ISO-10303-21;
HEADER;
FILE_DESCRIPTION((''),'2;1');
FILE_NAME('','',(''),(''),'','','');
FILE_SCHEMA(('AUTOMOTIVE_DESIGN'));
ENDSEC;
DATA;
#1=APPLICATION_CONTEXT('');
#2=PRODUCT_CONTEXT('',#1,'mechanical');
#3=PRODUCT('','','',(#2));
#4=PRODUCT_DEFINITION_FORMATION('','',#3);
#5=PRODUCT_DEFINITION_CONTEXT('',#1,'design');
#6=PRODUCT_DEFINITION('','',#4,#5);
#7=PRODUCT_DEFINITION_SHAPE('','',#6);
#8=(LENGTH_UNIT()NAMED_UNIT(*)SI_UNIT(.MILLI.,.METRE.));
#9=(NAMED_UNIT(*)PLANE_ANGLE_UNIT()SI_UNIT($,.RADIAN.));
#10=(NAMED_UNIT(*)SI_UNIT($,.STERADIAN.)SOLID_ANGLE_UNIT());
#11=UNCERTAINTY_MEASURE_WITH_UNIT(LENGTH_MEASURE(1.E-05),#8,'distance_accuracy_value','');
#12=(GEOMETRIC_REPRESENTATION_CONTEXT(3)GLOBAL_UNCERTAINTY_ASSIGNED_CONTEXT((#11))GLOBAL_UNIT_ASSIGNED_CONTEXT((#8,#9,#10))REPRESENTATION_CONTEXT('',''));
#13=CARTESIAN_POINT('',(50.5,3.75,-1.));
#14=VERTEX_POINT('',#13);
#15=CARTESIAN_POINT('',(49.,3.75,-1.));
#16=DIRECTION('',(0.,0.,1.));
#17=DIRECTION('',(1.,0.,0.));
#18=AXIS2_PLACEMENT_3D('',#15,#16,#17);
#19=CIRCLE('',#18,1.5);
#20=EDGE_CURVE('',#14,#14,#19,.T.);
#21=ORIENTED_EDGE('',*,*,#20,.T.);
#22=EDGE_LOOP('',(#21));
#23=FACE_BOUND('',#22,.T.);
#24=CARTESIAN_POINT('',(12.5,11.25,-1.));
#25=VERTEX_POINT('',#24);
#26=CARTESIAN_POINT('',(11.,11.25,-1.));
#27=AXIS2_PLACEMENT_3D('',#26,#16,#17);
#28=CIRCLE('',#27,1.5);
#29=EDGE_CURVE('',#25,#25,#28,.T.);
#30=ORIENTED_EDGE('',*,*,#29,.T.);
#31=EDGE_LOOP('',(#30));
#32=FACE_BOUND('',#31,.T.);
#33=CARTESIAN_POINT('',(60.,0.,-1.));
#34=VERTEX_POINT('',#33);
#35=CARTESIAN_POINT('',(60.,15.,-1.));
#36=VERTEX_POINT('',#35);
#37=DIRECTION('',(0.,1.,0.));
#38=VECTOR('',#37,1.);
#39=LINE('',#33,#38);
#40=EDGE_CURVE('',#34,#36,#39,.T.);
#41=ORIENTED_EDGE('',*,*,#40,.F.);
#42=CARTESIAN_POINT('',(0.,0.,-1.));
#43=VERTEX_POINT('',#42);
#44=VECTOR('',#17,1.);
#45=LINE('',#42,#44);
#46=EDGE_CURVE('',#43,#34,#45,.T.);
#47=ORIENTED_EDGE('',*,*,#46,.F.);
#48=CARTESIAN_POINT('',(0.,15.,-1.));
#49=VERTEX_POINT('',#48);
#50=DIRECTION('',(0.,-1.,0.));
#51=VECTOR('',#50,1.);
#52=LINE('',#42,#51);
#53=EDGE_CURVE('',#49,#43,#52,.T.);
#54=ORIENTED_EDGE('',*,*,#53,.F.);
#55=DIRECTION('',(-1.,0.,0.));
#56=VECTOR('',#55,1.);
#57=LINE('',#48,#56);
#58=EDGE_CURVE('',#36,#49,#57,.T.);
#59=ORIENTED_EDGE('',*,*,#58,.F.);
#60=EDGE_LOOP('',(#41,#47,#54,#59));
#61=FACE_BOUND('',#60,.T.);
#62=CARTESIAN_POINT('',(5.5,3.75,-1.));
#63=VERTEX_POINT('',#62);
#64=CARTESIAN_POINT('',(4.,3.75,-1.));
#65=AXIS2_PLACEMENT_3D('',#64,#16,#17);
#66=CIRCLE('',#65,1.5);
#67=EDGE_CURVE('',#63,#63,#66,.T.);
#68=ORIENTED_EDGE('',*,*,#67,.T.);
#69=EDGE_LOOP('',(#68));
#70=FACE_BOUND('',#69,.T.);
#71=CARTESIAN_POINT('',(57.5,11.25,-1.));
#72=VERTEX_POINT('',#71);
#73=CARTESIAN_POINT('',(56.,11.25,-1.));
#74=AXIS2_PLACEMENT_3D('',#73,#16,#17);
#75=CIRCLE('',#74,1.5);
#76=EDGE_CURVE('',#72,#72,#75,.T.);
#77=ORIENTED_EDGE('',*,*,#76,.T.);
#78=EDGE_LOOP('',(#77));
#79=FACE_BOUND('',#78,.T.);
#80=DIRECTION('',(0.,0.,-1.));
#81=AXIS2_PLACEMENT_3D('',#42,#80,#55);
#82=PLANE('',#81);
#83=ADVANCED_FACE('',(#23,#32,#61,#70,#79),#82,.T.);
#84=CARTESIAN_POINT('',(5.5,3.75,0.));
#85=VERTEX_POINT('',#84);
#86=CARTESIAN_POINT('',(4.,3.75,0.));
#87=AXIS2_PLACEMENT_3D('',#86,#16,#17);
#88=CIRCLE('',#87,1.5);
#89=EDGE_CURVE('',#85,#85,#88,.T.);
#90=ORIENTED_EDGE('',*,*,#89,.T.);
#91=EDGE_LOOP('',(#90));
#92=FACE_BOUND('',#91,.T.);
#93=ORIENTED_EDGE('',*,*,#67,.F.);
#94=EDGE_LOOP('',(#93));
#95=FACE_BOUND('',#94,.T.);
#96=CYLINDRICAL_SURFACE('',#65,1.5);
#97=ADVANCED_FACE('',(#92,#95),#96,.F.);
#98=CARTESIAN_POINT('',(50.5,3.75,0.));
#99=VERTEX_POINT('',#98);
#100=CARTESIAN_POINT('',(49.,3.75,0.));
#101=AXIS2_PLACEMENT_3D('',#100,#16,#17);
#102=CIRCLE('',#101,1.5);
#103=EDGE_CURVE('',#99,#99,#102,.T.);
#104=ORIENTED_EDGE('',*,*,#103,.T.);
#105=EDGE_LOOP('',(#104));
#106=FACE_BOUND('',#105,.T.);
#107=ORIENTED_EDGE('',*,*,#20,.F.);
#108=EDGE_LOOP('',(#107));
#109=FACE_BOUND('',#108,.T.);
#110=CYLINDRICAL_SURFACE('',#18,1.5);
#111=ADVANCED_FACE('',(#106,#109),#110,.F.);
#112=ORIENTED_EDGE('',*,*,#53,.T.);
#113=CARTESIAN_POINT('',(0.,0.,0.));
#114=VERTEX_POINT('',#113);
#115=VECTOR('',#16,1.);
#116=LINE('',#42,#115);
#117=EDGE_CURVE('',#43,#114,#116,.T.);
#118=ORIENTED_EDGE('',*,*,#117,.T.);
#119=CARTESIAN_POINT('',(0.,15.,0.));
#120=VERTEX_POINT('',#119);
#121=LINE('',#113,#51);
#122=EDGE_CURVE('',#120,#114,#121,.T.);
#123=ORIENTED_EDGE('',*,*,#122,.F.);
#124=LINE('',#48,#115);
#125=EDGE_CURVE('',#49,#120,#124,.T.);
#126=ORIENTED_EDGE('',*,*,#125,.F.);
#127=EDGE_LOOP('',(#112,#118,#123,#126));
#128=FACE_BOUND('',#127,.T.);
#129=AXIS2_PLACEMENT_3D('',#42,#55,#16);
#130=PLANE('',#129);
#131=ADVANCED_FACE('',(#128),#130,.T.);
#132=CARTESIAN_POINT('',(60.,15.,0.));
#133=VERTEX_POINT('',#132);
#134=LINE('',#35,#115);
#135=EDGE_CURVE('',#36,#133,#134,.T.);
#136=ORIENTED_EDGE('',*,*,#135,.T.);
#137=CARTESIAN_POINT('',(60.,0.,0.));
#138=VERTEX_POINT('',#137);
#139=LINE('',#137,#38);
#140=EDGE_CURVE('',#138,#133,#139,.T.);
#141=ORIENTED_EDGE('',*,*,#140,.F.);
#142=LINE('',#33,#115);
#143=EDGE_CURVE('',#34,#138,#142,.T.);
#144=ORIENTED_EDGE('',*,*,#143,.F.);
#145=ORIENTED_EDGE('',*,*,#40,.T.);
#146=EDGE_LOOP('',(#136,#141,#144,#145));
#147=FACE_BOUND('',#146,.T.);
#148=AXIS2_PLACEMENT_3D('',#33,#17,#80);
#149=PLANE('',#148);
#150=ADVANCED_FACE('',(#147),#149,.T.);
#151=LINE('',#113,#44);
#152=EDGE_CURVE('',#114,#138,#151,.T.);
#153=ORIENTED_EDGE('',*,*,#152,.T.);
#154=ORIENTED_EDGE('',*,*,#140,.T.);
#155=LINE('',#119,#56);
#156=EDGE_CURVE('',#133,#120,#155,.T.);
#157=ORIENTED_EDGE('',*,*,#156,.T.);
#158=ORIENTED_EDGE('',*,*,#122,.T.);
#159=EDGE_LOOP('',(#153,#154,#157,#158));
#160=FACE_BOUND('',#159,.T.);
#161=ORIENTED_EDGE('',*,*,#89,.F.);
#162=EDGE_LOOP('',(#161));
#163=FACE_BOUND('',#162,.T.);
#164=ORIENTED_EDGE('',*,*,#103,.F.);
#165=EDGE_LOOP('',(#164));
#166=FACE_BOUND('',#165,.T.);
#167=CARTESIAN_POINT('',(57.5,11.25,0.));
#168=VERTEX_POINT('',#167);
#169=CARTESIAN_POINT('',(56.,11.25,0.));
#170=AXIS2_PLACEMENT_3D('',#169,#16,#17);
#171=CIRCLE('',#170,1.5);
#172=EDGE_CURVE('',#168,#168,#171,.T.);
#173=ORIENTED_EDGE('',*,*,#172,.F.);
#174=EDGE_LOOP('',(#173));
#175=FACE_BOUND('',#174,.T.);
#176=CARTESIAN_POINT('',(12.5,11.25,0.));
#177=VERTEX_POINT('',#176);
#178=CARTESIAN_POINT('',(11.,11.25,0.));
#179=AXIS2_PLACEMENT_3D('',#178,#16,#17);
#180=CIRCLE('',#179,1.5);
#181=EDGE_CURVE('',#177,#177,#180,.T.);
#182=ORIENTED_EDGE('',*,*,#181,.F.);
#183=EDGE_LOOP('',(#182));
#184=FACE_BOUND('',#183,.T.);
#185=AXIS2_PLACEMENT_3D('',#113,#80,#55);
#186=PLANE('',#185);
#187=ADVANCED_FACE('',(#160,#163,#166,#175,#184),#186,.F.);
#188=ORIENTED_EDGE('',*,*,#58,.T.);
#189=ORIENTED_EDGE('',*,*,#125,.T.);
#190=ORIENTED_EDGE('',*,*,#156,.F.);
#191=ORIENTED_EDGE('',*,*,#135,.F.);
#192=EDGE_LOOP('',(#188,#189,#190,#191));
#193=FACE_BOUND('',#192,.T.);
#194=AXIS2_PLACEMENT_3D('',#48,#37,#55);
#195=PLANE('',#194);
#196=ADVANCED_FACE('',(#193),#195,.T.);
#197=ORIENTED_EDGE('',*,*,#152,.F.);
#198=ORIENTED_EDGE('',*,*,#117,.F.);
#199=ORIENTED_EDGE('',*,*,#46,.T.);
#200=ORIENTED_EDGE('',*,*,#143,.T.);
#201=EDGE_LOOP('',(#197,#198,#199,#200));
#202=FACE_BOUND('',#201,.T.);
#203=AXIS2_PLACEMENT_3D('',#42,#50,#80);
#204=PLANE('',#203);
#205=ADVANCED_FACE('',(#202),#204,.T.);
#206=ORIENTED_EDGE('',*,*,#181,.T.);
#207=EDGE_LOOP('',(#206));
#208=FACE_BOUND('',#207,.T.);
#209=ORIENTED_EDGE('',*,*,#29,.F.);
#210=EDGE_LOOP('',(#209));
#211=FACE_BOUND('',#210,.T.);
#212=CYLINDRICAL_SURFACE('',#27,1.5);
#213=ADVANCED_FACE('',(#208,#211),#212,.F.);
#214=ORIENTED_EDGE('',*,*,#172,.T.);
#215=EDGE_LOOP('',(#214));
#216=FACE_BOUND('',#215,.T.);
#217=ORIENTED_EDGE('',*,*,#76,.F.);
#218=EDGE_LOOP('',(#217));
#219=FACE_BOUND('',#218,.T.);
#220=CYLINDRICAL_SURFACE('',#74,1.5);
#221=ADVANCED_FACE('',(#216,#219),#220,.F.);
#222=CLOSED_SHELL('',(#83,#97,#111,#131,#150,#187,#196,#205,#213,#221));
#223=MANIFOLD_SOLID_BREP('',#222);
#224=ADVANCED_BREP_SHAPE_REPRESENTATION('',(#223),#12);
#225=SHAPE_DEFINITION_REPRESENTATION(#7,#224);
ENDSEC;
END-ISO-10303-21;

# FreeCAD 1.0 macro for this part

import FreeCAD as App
import Part
import Sketcher

V = App.Vector


def add_polygon(sketch, points):
    """Adds a closed chain of lines whose ends are joined by coincident constraints."""
    first, n = sketch.GeometryCount, len(points)
    for a, b in zip(points, points[1:] + points[:1]):
        sketch.addGeometry(Part.LineSegment(App.Vector(*a, 0), App.Vector(*b, 0)), False)
    for i in range(n):
        sketch.addConstraint(Sketcher.Constraint("Coincident", first + i, 2, first + (i + 1) % n, 1))

doc = App.newDocument("Part")
params = doc.addObject("Spreadsheet::Sheet", "Params")
for row, (alias, value) in enumerate([
    ("sketch1_diameter", "3 mm"),
    ("sketch1_width", "60 mm"),
    ("sketch1_height", "15 mm"),
    ("pad1_length", "1 mm"),
], start=1):
    params.set(f"A{row}", alias)
    params.set(f"B{row}", "=" + value)
    params.setAlias(f"B{row}", alias)

body = doc.addObject("PartDesign::Body", "Body")

sketch1 = body.newObject("Sketcher::SketchObject", "Sketch")
sketch1.AttachmentSupport = (doc.getObject("XY_Plane"), [""])
sketch1.MapMode = "FlatFace"
add_polygon(sketch1, [(0, 15), (0, 0), (60, 0), (60, 15)])
sketch1.addGeometry(Part.Circle(V(4, 3.8, 0), V(0, 0, 1), 1.5), False)
sketch1.addGeometry(Part.Circle(V(49, 3.8, 0), V(0, 0, 1), 1.5), False)
sketch1.addGeometry(Part.Circle(V(11, 11.2, 0), V(0, 0, 1), 1.5), False)
sketch1.addGeometry(Part.Circle(V(56, 11.2, 0), V(0, 0, 1), 1.5), False)
sketch1.addConstraint([
    Sketcher.Constraint("Vertical", 0),
    Sketcher.Constraint("Horizontal", 1),
    Sketcher.Constraint("Vertical", 2),
    Sketcher.Constraint("Horizontal", 3),
    Sketcher.Constraint("Coincident", 0, 2, -1, 1),
    Sketcher.Constraint("Equal", 4, 5),
    Sketcher.Constraint("Equal", 5, 6),
    Sketcher.Constraint("Equal", 6, 7),
    Sketcher.Constraint("Horizontal", 4, 3, 5, 3),
    Sketcher.Constraint("Horizontal", 6, 3, 7, 3),
    Sketcher.Constraint("Diameter", 4, 3.0),
    Sketcher.Constraint("DistanceX", 1, 1, 1, 2, 60.0),
    Sketcher.Constraint("DistanceY", 0, 2, 0, 1, 15.0),
    Sketcher.Constraint("DistanceX", -1, 1, 4, 3, 4.0),
    Sketcher.Constraint("DistanceX", -1, 1, 5, 3, 49.0),
    Sketcher.Constraint("DistanceX", -1, 1, 6, 3, 11.0),
    Sketcher.Constraint("DistanceX", -1, 1, 7, 3, 56.0),
    Sketcher.Constraint("DistanceY", 4, 3, 6, 3, 7.5),
    Sketcher.Constraint("DistanceY", -1, 1, 4, 3, 3.75),
])
sketch1.setExpression("Constraints[14]", "Params.sketch1_diameter")
sketch1.setExpression("Constraints[15]", "Params.sketch1_width")
sketch1.setExpression("Constraints[16]", "Params.sketch1_height")
pad1 = body.newObject("PartDesign::Pad", "Pad")
pad1.Profile = sketch1
pad1.setExpression("Length", "Params.pad1_length")
pad1.Reversed = True

doc.recompute()
